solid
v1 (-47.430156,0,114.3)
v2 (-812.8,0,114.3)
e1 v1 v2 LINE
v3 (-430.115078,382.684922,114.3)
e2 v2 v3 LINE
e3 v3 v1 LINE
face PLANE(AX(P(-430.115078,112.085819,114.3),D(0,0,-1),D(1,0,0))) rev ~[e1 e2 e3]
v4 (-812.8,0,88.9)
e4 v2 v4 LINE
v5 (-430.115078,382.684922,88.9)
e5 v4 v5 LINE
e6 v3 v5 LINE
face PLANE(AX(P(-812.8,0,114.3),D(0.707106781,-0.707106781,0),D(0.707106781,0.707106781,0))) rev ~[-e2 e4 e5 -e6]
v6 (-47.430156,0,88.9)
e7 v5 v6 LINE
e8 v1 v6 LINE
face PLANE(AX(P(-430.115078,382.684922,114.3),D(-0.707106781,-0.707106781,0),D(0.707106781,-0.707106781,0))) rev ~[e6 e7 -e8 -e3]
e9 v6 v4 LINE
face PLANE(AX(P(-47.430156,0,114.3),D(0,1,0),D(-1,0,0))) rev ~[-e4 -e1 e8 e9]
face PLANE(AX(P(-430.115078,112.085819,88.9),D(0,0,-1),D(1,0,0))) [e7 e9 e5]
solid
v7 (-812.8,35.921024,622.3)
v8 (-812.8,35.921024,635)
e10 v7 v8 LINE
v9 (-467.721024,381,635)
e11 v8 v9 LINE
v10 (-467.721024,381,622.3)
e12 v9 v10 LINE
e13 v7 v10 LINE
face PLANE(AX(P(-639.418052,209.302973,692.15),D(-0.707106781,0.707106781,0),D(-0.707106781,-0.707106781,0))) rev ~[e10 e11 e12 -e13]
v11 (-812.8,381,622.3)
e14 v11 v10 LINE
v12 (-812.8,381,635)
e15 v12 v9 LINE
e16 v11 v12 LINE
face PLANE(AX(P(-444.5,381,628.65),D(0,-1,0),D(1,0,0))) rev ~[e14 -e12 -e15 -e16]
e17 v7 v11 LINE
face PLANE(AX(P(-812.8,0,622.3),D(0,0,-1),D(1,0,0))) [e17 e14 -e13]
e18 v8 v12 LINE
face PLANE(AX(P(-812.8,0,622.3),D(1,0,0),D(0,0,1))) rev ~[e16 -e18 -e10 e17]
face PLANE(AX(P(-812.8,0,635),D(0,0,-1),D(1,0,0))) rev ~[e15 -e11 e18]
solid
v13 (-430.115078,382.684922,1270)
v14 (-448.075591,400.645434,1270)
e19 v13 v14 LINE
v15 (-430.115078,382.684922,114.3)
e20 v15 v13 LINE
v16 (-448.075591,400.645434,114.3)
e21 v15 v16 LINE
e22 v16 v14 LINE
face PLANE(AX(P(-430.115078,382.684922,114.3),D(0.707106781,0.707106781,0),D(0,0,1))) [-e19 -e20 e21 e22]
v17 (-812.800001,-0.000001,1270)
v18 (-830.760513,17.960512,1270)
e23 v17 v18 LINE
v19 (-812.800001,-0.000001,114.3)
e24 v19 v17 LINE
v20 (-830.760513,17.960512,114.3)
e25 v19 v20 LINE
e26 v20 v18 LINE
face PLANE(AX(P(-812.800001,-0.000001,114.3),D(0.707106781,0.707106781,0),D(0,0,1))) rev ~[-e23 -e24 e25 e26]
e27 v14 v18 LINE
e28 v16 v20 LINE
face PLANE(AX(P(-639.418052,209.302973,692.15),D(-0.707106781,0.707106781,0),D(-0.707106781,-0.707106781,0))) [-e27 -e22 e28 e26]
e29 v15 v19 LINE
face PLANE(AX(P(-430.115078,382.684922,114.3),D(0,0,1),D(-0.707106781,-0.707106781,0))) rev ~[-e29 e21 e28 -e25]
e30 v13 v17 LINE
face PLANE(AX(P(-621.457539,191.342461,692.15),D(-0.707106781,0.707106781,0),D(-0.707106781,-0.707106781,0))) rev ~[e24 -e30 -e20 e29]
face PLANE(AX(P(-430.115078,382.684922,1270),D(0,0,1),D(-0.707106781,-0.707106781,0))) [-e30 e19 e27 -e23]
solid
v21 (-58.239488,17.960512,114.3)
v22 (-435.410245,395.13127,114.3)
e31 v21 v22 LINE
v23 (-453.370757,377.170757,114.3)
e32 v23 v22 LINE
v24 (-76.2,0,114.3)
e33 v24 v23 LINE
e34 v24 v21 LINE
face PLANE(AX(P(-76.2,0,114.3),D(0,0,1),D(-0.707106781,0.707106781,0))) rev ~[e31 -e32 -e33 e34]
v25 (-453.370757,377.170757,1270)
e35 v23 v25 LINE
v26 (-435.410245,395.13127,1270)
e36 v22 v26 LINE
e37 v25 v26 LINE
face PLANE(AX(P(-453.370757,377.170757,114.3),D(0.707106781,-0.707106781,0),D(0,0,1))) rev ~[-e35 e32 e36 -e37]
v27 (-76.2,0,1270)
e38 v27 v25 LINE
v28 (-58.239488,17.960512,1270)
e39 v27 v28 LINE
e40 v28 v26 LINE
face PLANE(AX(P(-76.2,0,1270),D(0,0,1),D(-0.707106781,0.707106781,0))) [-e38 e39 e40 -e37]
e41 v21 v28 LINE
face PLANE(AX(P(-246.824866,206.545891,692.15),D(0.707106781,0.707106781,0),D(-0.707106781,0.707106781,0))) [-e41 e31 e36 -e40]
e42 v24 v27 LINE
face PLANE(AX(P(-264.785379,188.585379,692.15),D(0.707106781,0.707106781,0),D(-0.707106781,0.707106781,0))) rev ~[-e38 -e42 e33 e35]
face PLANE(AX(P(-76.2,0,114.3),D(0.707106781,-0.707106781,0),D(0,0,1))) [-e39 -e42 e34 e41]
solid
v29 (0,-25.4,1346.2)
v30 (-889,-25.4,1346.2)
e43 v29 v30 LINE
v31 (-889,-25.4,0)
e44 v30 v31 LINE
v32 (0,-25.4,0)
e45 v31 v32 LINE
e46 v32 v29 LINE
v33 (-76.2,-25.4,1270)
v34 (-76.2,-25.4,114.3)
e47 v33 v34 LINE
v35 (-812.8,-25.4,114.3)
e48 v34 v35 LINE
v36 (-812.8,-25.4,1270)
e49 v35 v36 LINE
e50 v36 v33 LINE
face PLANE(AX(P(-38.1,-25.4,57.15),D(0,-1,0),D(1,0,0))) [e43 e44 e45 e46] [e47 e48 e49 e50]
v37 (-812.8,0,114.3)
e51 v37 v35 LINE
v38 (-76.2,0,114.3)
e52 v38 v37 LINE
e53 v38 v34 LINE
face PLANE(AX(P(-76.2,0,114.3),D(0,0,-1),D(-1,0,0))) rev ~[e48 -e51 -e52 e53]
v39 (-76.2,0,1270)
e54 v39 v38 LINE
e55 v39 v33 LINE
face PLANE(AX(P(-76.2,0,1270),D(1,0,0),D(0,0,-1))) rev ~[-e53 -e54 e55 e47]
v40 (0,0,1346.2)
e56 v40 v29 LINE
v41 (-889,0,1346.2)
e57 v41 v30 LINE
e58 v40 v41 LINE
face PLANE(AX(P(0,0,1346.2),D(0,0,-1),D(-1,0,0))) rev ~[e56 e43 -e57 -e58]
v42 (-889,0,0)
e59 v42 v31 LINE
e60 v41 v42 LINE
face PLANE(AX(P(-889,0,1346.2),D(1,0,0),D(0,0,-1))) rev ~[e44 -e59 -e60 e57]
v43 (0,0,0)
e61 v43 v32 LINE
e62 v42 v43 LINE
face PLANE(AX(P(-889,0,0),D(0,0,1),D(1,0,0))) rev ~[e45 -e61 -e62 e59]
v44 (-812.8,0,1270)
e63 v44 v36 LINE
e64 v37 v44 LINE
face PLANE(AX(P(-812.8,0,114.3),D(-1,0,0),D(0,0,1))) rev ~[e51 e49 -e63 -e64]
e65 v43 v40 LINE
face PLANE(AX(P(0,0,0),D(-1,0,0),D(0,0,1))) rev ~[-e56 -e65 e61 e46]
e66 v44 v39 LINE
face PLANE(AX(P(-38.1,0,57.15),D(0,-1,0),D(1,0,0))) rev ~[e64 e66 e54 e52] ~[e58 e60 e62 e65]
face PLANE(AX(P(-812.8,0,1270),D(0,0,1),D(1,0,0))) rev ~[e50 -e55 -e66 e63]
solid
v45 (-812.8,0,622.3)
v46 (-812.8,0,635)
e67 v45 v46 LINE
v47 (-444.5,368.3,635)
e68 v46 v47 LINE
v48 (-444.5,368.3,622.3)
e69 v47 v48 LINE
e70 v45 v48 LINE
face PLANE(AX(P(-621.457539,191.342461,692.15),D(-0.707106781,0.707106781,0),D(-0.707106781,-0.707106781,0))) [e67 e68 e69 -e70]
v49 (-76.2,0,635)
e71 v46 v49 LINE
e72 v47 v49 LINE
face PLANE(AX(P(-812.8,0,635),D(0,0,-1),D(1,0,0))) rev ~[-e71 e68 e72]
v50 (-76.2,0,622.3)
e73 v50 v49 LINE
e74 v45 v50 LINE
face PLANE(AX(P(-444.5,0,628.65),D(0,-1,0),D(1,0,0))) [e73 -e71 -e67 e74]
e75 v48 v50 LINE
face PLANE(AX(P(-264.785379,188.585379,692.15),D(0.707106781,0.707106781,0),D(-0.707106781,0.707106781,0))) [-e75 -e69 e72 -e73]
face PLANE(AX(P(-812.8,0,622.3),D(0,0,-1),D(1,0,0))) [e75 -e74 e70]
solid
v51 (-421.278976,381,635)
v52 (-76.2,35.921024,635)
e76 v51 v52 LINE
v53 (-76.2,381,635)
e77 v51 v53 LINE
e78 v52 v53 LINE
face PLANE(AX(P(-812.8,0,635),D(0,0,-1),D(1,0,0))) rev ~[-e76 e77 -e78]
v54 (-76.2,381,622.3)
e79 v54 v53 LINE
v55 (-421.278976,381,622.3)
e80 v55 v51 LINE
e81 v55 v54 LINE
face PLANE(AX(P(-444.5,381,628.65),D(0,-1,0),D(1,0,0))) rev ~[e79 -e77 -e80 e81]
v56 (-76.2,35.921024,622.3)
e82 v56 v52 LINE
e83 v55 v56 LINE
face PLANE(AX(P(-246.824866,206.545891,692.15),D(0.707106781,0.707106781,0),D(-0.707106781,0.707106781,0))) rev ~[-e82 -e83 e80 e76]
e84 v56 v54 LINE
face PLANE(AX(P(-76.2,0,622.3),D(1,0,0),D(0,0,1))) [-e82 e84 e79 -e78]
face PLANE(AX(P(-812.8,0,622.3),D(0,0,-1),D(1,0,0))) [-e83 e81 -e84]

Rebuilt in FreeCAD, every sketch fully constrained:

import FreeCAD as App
import Part
import Sketcher
Q = App.Units.Quantity

doc = App.newDocument("Part")
body = doc.addObject("PartDesign::Body", "Body")

sketch1 = body.newObject("Sketcher::SketchObject", "Sketch")
sketch1.AttachmentSupport = (doc.getObject("XZ_Plane"), [""])
sketch1.MapMode = "FlatFace"
sketch1.addGeometry([
    Part.LineSegment(App.Vector(0, 1346, 0), App.Vector(-889, 1346, 0)),
    Part.LineSegment(App.Vector(-889, 1346, 0), App.Vector(-889, 0, 0)),
    Part.LineSegment(App.Vector(-889, 0, 0), App.Vector(0, 0, 0)),
    Part.LineSegment(App.Vector(0, 0, 0), App.Vector(0, 1346, 0)),
    Part.LineSegment(App.Vector(-813, 114, 0), App.Vector(-813, 1270, 0)),
    Part.LineSegment(App.Vector(-813, 1270, 0), App.Vector(-76, 1270, 0)),
    Part.LineSegment(App.Vector(-76, 1270, 0), App.Vector(-76, 114, 0)),
    Part.LineSegment(App.Vector(-76, 114, 0), App.Vector(-813, 114, 0)),
], False)
sketch1.addConstraint([
    Sketcher.Constraint("Coincident", 0, 2, 1, 1),
    Sketcher.Constraint("Coincident", 1, 2, 2, 1),
    Sketcher.Constraint("Coincident", 2, 2, 3, 1),
    Sketcher.Constraint("Coincident", 3, 2, 0, 1),
    Sketcher.Constraint("Coincident", 4, 2, 5, 1),
    Sketcher.Constraint("Coincident", 5, 2, 6, 1),
    Sketcher.Constraint("Coincident", 6, 2, 7, 1),
    Sketcher.Constraint("Coincident", 7, 2, 4, 1),
    Sketcher.Constraint("Horizontal", 0),
    Sketcher.Constraint("Vertical", 1),
    Sketcher.Constraint("Horizontal", 2),
    Sketcher.Constraint("Vertical", 3),
    Sketcher.Constraint("Vertical", 4),
    Sketcher.Constraint("Horizontal", 5),
    Sketcher.Constraint("Vertical", 6),
    Sketcher.Constraint("Horizontal", 7),
    Sketcher.Constraint("Coincident", 2, 2, -1, 1),
    Sketcher.Constraint("DistanceX", 0, 2, 0, 1, Q("35 in")),
    Sketcher.Constraint("DistanceX", 5, 1, 5, 2, Q("29 in")),
    Sketcher.Constraint("DistanceY", 1, 2, 1, 1, Q("53 in")),
    Sketcher.Constraint("DistanceY", 4, 1, 4, 2, Q("45.5 in")),
    Sketcher.Constraint("DistanceX", 4, 2, -1, 1, Q("32 in")),
    Sketcher.Constraint("DistanceY", -1, 1, 4, 2, Q("50 in")),
])
pad1 = body.newObject("PartDesign::Pad", "Pad")
pad1.Profile = sketch1
pad1.Length = Q("1 in")
body2 = doc.addObject("PartDesign::Body", "Body001")

sketch2 = body2.newObject("Sketcher::SketchObject", "Sketch001")
sketch2.AttachmentSupport = (doc.getObject("XZ_Plane001"), [""])
sketch2.MapMode = "FlatFace"
sketch2.addGeometry([
    Part.LineSegment(App.Vector(-813, 635, 0), App.Vector(-813, 622, 0)),
    Part.LineSegment(App.Vector(-813, 622, 0), App.Vector(-76, 622, 0)),
    Part.LineSegment(App.Vector(-76, 622, 0), App.Vector(-76, 635, 0)),
    Part.LineSegment(App.Vector(-76, 635, 0), App.Vector(-813, 635, 0)),
], False)
sketch2.addConstraint([
    Sketcher.Constraint("Coincident", 0, 2, 1, 1),
    Sketcher.Constraint("Coincident", 1, 2, 2, 1),
    Sketcher.Constraint("Coincident", 2, 2, 3, 1),
    Sketcher.Constraint("Coincident", 3, 2, 0, 1),
    Sketcher.Constraint("Vertical", 0),
    Sketcher.Constraint("Horizontal", 1),
    Sketcher.Constraint("Vertical", 2),
    Sketcher.Constraint("Horizontal", 3),
    Sketcher.Constraint("DistanceX", 1, 1, 1, 2, Q("29 in")),
    Sketcher.Constraint("DistanceY", 0, 2, 0, 1, Q("0.5 in")),
    Sketcher.Constraint("DistanceX", 0, 2, -1, 1, Q("32 in")),
    Sketcher.Constraint("DistanceY", -1, 1, 2, 2, Q("25 in")),
])
pad2 = body2.newObject("PartDesign::Pad", "Pad001")
pad2.Profile = sketch2
pad2.Length = Q("15 in")
pad2.Reversed = True
body3 = doc.addObject("PartDesign::Body", "Body002")

sketch3 = body3.newObject("Sketcher::SketchObject", "Sketch002")
sketch3.Placement = App.Placement(App.Vector(-38.1, -38.1, 0), App.Rotation(App.Vector(-0.707106781, 0.707106781, 0), App.Vector(0, 0, 0.999999999), App.Vector(0.707106781, 0.707106781, 0), "ZXY"))
sketch3.addGeometry([
    Part.LineSegment(App.Vector(54, 1270, 0), App.Vector(54, 114, 0)),
    Part.LineSegment(App.Vector(54, 114, 0), App.Vector(587, 114, 0)),
    Part.LineSegment(App.Vector(587, 114, 0), App.Vector(587, 1270, 0)),
    Part.LineSegment(App.Vector(587, 1270, 0), App.Vector(54, 1270, 0)),
], False)
sketch3.addConstraint([
    Sketcher.Constraint("Coincident", 0, 2, 1, 1),
    Sketcher.Constraint("Coincident", 1, 2, 2, 1),
    Sketcher.Constraint("Coincident", 2, 2, 3, 1),
    Sketcher.Constraint("Coincident", 3, 2, 0, 1),
    Sketcher.Constraint("Vertical", 0),
    Sketcher.Constraint("Horizontal", 1),
    Sketcher.Constraint("Vertical", 2),
    Sketcher.Constraint("Horizontal", 3),
    Sketcher.Constraint("DistanceX", 1, 1, 1, 2, Q("21 in")),
    Sketcher.Constraint("DistanceY", 0, 2, 0, 1, Q("45.5 in")),
    Sketcher.Constraint("DistanceY", -1, 1, 2, 2, Q("49.9999999 in")),
    Sketcher.Constraint("DistanceX", -1, 1, 0, 2, 53.881537),
])
pad3 = body3.newObject("PartDesign::Pad", "Pad002")
pad3.Profile = sketch3
pad3.Length = Q("1 in")
body4 = doc.addObject("PartDesign::Body", "Body003")

sketch4 = body4.newObject("Sketcher::SketchObject", "Sketch003")
sketch4.Placement = App.Placement(App.Vector(-406.4, 406.4, 0), App.Rotation(App.Vector(-0.707106781, -0.707106781, 0), App.Vector(0, 0, 0.999999999), App.Vector(-0.707106781, 0.707106781, 0), "ZXY"))
sketch4.addGeometry([
    Part.LineSegment(App.Vector(34, 1270, 0), App.Vector(34, 114, 0)),
    Part.LineSegment(App.Vector(34, 114, 0), App.Vector(575, 114, 0)),
    Part.LineSegment(App.Vector(575, 114, 0), App.Vector(575, 1270, 0)),
    Part.LineSegment(App.Vector(575, 1270, 0), App.Vector(34, 1270, 0)),
], False)
sketch4.addConstraint([
    Sketcher.Constraint("Coincident", 0, 2, 1, 1),
    Sketcher.Constraint("Coincident", 1, 2, 2, 1),
    Sketcher.Constraint("Coincident", 2, 2, 3, 1),
    Sketcher.Constraint("Coincident", 3, 2, 0, 1),
    Sketcher.Constraint("Vertical", 0),
    Sketcher.Constraint("Horizontal", 1),
    Sketcher.Constraint("Vertical", 2),
    Sketcher.Constraint("Horizontal", 3),
    Sketcher.Constraint("DistanceY", 0, 2, 0, 1, Q("45.5 in")),
    Sketcher.Constraint("DistanceY", -1, 1, 2, 2, Q("49.9999999 in")),
    Sketcher.Constraint("DistanceX", 1, 1, 1, 2, 541.198207),
    Sketcher.Constraint("DistanceX", -1, 1, 0, 2, 33.538185),
])
pad4 = body4.newObject("PartDesign::Pad", "Pad003")
pad4.Profile = sketch4
pad4.Length = Q("1 in")
body5 = doc.addObject("PartDesign::Body", "Body004")

sketch5 = body5.newObject("Sketcher::SketchObject", "Sketch004")
sketch5.AttachmentSupport = (doc.getObject("XY_Plane004"), [""])
sketch5.MapMode = "FlatFace"
sketch5.AttachmentOffset = App.Placement(App.Vector(0, 0, 4.5 * 25.4), App.Rotation())
sketch5.addGeometry([
    Part.LineSegment(App.Vector(-47, 0, 0), App.Vector(-813, 0, 0)),
    Part.LineSegment(App.Vector(-813, 0, 0), App.Vector(-430, 383, 0)),
    Part.LineSegment(App.Vector(-430, 383, 0), App.Vector(-47, 0, 0)),
], False)
sketch5.addConstraint([
    Sketcher.Constraint("Coincident", 0, 2, 1, 1),
    Sketcher.Constraint("Coincident", 1, 2, 2, 1),
    Sketcher.Constraint("Coincident", 2, 2, 0, 1),
    Sketcher.Constraint("Horizontal", 0),
    Sketcher.Constraint("PointOnObject", 0, 2, -1),
    Sketcher.Constraint("Perpendicular", 1, 2),
    Sketcher.Constraint("Equal", 1, 2),
    Sketcher.Constraint("DistanceX", 0, 2, -1, 1, Q("32 in")),
    Sketcher.Constraint("DistanceX", 0, 2, 0, 1, 765.369844),
])
pad5 = body5.newObject("PartDesign::Pad", "Pad004")
pad5.Profile = sketch5
pad5.Length = Q("1 in")
pad5.Reversed = True
body2.AllowCompound = True
doc.recompute()

body6 = doc.addObject("PartDesign::Body", "Body005")
body6.BaseFeature = body4
boolean = body2.newObject("PartDesign::Boolean", "Boolean")
boolean.Type = "Cut"
boolean.addObjects([body6])
doc.recompute()

body7 = doc.addObject("PartDesign::Body", "Body006")
body7.BaseFeature = body3
boolean2 = body2.newObject("PartDesign::Boolean", "Boolean001")
boolean2.Type = "Cut"
boolean2.addObjects([body7])
doc.recompute()

doc.recompute()
